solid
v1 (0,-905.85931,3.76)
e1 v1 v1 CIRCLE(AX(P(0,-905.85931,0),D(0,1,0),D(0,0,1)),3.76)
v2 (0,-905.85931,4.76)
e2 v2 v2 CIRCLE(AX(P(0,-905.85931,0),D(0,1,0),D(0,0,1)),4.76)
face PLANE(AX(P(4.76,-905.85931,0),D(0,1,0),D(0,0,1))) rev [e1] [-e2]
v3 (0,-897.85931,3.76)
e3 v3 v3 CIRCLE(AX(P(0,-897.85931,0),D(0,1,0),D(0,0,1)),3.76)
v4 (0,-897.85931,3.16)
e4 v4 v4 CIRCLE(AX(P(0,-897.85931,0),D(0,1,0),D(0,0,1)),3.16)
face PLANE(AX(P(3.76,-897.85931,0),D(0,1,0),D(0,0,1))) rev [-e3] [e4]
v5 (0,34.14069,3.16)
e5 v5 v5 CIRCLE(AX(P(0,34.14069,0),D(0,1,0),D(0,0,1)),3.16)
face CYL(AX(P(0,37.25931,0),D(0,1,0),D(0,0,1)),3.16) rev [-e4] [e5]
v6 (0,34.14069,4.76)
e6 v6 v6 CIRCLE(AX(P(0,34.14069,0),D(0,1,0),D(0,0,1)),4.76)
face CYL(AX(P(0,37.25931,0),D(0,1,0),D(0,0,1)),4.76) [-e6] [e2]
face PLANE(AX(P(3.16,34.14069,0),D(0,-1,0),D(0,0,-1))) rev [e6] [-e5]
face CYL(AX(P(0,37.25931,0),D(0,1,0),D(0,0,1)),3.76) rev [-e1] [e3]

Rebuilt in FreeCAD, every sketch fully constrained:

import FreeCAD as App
import Part
import Sketcher

V = App.Vector
Q = App.Units.Quantity


def add_polygon(sketch, points):
    """Adds a closed chain of lines whose ends are joined by coincident constraints."""
    first, n = sketch.GeometryCount, len(points)
    for a, b in zip(points, points[1:] + points[:1]):
        sketch.addGeometry(Part.LineSegment(App.Vector(*a, 0), App.Vector(*b, 0)), False)
    for i in range(n):
        sketch.addConstraint(Sketcher.Constraint("Coincident", first + i, 2, first + (i + 1) % n, 1))

doc = App.newDocument("Part")
body = doc.addObject("PartDesign::Body", "Body")

# Sketch on XY plane
sketch1 = doc.addObject("Sketcher::SketchObject", "Sketch")
body.addObject(sketch1)
sketch1.AttachmentSupport = (doc.XY_Plane, [""])
sketch1.MapMode = "FlatFace"
add_polygon(sketch1, [(4.76, 34.14069), (3.16, 34.14069), (3.16, -897.85931), (3.76, -897.85931), (3.76, -905.85931), (4.76, -905.85931)])  # lines 0-5
sketch1.addConstraint([
    Sketcher.Constraint("Horizontal", 0),
    Sketcher.Constraint("Vertical", 1),
    Sketcher.Constraint("Horizontal", 2),
    Sketcher.Constraint("Vertical", 3),
    Sketcher.Constraint("Horizontal", 4),
    Sketcher.Constraint("Vertical", 5),
    Sketcher.Constraint("DistanceX", 4, 1, 4, 2, Q("1 mm")),
    Sketcher.Constraint("DistanceY", 1, 2, 1, 1, Q("932 mm")),
    Sketcher.Constraint("DistanceY", 3, 2, 3, 1, Q("8 mm")),
    Sketcher.Constraint("DistanceX", 0, 2, 0, 1, Q("1.6 mm")),
    Sketcher.Constraint("DistanceX", -1, 1, 0, 2, Q("3.16 mm")),
    Sketcher.Constraint("DistanceY", -1, 1, 0, 2, Q("34.14069 mm")),
])
revolution = doc.addObject("PartDesign::Revolution", "Revolution")
body.addObject(revolution)
revolution.Profile = sketch1
revolution.ReferenceAxis = (sketch1, ["V_Axis"])
revolution.Angle = 360

doc.recompute()
